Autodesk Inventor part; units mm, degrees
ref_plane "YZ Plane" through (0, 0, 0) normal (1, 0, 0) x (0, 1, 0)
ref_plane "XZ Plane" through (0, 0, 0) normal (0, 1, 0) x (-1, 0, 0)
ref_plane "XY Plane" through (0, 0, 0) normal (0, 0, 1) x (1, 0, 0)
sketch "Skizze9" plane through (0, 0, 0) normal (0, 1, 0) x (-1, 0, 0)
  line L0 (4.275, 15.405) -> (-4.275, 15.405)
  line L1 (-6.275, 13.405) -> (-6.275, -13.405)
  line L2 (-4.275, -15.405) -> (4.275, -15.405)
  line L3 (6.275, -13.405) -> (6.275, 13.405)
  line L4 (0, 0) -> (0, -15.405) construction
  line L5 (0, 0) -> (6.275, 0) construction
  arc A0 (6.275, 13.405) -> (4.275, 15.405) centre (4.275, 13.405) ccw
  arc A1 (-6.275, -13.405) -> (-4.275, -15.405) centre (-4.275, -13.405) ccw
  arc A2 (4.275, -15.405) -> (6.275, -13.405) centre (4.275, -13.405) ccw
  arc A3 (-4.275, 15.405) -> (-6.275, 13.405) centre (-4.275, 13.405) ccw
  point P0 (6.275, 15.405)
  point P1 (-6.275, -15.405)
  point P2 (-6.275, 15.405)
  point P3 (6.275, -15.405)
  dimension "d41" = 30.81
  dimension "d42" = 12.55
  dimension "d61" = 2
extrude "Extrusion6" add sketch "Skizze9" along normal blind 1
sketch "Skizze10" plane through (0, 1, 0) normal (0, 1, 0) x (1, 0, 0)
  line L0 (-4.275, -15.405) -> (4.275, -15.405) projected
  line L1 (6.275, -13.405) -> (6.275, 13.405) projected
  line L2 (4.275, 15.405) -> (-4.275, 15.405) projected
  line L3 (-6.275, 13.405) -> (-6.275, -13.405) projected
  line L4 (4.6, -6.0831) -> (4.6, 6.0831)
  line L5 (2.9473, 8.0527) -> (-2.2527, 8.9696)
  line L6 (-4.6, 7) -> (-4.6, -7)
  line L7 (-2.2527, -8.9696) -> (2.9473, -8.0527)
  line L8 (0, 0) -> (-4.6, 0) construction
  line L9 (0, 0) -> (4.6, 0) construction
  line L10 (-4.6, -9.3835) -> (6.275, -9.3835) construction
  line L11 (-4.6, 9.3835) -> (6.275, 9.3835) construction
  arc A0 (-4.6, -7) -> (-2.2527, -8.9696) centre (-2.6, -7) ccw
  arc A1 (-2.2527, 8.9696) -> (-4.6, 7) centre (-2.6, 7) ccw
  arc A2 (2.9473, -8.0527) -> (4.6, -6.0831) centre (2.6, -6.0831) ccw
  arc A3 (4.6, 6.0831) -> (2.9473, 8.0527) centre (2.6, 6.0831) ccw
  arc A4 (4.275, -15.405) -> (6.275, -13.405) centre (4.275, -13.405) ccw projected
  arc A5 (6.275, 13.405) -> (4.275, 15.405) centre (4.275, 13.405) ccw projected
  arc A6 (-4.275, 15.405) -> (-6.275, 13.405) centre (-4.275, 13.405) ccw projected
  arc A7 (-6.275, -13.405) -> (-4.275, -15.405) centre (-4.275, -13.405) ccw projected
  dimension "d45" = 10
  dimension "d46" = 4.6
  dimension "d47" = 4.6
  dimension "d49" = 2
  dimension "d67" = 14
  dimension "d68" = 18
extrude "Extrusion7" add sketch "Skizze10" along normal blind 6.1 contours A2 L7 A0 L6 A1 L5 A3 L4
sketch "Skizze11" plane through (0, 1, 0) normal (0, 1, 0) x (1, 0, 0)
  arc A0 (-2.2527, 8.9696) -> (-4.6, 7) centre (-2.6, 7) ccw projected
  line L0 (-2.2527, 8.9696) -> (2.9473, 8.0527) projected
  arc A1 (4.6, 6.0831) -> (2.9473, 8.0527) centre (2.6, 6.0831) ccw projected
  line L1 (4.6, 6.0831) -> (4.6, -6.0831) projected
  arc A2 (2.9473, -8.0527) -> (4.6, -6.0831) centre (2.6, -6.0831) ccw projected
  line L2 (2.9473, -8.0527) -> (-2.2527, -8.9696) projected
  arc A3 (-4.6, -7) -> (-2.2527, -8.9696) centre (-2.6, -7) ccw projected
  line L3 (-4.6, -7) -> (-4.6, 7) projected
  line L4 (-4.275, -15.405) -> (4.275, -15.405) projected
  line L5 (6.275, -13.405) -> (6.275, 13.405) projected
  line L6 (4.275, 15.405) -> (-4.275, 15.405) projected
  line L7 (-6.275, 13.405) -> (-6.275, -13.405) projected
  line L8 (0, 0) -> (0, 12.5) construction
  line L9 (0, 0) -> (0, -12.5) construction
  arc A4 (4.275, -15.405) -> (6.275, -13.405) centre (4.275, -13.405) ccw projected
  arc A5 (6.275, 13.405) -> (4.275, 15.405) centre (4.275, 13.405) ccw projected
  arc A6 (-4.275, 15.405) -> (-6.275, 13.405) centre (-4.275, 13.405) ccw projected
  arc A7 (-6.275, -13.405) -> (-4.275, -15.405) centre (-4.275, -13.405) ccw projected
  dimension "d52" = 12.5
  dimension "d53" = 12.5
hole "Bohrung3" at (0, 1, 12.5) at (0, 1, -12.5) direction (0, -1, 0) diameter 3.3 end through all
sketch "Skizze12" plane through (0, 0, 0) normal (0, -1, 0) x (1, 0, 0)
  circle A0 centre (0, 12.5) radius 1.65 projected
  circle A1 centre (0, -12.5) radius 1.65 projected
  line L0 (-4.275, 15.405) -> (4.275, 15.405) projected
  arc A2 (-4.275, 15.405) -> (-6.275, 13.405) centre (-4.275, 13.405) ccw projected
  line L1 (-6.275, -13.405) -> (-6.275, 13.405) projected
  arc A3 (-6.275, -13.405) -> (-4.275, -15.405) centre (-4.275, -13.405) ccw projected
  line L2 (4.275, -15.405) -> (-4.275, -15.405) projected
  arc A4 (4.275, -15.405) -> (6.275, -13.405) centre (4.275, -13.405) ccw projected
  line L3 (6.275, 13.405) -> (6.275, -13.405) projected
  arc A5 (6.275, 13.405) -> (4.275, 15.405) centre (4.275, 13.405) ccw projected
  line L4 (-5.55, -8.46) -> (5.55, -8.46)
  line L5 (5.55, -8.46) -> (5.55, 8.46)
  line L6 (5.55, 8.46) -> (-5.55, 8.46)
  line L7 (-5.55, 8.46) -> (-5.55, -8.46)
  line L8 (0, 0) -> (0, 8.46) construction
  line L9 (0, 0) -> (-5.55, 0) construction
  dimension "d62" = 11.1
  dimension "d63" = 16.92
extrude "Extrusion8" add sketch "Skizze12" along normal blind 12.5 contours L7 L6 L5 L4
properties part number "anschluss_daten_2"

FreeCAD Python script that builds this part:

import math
import FreeCAD as App
import Part
import Sketcher
from FreeCAD import Vector
Q = App.Units.Quantity

doc = App.newDocument("Part")
body = doc.addObject("PartDesign::Body", "Body")

sketch1 = body.newObject("Sketcher::SketchObject", "Sketch")
sketch1.AttachmentSupport = (doc.getObject("XZ_Plane"), [""])
sketch1.MapMode = "FlatFace"
sketch1.addGeometry(Part.ArcOfCircle(Part.Circle(Vector(-4.3, 13.4, 0), Vector(0, 0, 1), 2), math.radians(90), math.radians(180)), False)
sketch1.addGeometry(Part.LineSegment(Vector(-4.3, 15.4, 0), Vector(4.3, 15.4, 0)), False)
sketch1.addGeometry(Part.ArcOfCircle(Part.Circle(Vector(4.3, 13.4, 0), Vector(0, 0, 1), 2), math.radians(0), math.radians(90)), False)
sketch1.addGeometry(Part.LineSegment(Vector(6.3, 13.4, 0), Vector(6.3, -13.4, 0)), False)
sketch1.addGeometry(Part.ArcOfCircle(Part.Circle(Vector(4.3, -13.4, 0), Vector(0, 0, 1), 2), math.radians(-90), math.radians(0)), False)
sketch1.addGeometry(Part.LineSegment(Vector(4.3, -15.4, 0), Vector(-4.3, -15.4, 0)), False)
sketch1.addGeometry(Part.ArcOfCircle(Part.Circle(Vector(-4.3, -13.4, 0), Vector(0, 0, 1), 2), math.radians(180), math.radians(270)), False)
sketch1.addGeometry(Part.LineSegment(Vector(-6.3, -13.4, 0), Vector(-6.3, 13.4, 0)), False)
sketch1.addConstraint(Sketcher.Constraint("Tangent", 0, 1, 1, 1))
sketch1.addConstraint(Sketcher.Constraint("Tangent", 1, 2, 2, 2))
sketch1.addConstraint(Sketcher.Constraint("Tangent", 2, 1, 3, 1))
sketch1.addConstraint(Sketcher.Constraint("Tangent", 3, 2, 4, 2))
sketch1.addConstraint(Sketcher.Constraint("Tangent", 4, 1, 5, 1))
sketch1.addConstraint(Sketcher.Constraint("Tangent", 5, 2, 6, 2))
sketch1.addConstraint(Sketcher.Constraint("Tangent", 6, 1, 7, 1))
sketch1.addConstraint(Sketcher.Constraint("Tangent", 7, 2, 0, 2))
sketch1.addConstraint(Sketcher.Constraint("Horizontal", 1))
sketch1.addConstraint(Sketcher.Constraint("Vertical", 3))
sketch1.addConstraint(Sketcher.Constraint("Horizontal", 5))
sketch1.addConstraint(Sketcher.Constraint("Vertical", 7))
sketch1.addConstraint(Sketcher.Constraint("Equal", 0, 2))
sketch1.addConstraint(Sketcher.Constraint("Equal", 2, 4))
sketch1.addConstraint(Sketcher.Constraint("Equal", 4, 6))
sketch1.addConstraint(Sketcher.Constraint("Symmetric", 0, 3, 4, 3, -1, 1))
sketch1.addConstraint(Sketcher.Constraint("Radius", 0, Q("2 mm")))
sketch1.addConstraint(Sketcher.Constraint("DistanceX", 6, 1, 3, 2, Q("12.55 mm")))
sketch1.addConstraint(Sketcher.Constraint("DistanceY", 3, 2, 3, 1, Q("26.81 mm")))
pad1 = body.newObject("PartDesign::Pad", "Pad")
pad1.Profile = sketch1
pad1.Length = 1
pad1.Reversed = True

sketch2 = body.newObject("Sketcher::SketchObject", "Sketch001")
sketch2.AttachmentSupport = (doc.getObject("XZ_Plane"), [""])
sketch2.MapMode = "FlatFace"
sketch2.AttachmentOffset = App.Placement(Vector(0, 0, -1), App.Rotation())
sketch2.addGeometry(Part.ArcOfCircle(Part.Circle(Vector(2.6, 6.1, 0), Vector(0, 0, 1), 2), math.radians(0), math.radians(80)), False)
sketch2.addGeometry(Part.LineSegment(Vector(4.6, 6.1, 0), Vector(4.6, -6.1, 0)), False)
sketch2.addGeometry(Part.ArcOfCircle(Part.Circle(Vector(2.6, -6.1, 0), Vector(0, 0, 1), 2), math.radians(-80), math.radians(0)), False)
sketch2.addGeometry(Part.LineSegment(Vector(2.9, -8.1, 0), Vector(-2.3, -9, 0)), False)
sketch2.addGeometry(Part.ArcOfCircle(Part.Circle(Vector(-2.6, -7, 0), Vector(0, 0, 1), 2), math.radians(180), math.radians(280)), False)
sketch2.addGeometry(Part.LineSegment(Vector(-4.6, -7, 0), Vector(-4.6, 7, 0)), False)
sketch2.addGeometry(Part.ArcOfCircle(Part.Circle(Vector(-2.6, 7, 0), Vector(0, 0, 1), 2), math.radians(80), math.radians(180)), False)
sketch2.addGeometry(Part.LineSegment(Vector(-2.3, 9, 0), Vector(2.9, 8.1, 0)), False)
sketch2.addConstraint(Sketcher.Constraint("Tangent", 0, 1, 1, 1))
sketch2.addConstraint(Sketcher.Constraint("Tangent", 1, 2, 2, 2))
sketch2.addConstraint(Sketcher.Constraint("Tangent", 2, 1, 3, 1))
sketch2.addConstraint(Sketcher.Constraint("Tangent", 3, 2, 4, 2))
sketch2.addConstraint(Sketcher.Constraint("Tangent", 4, 1, 5, 1))
sketch2.addConstraint(Sketcher.Constraint("Tangent", 5, 2, 6, 2))
sketch2.addConstraint(Sketcher.Constraint("Tangent", 6, 1, 7, 1))
sketch2.addConstraint(Sketcher.Constraint("Tangent", 7, 2, 0, 2))
sketch2.addConstraint(Sketcher.Constraint("Vertical", 1))
sketch2.addConstraint(Sketcher.Constraint("Vertical", 5))
sketch2.addConstraint(Sketcher.Constraint("Equal", 0, 2))
sketch2.addConstraint(Sketcher.Constraint("Equal", 2, 4))
sketch2.addConstraint(Sketcher.Constraint("Equal", 4, 6))
sketch2.addConstraint(Sketcher.Constraint("Symmetric", 3, 2, 6, 1, -1))
sketch2.addConstraint(Sketcher.Constraint("Radius", 0, Q("2 mm")))
sketch2.addConstraint(Sketcher.Constraint("DistanceY", 5, 1, 5, 2, Q("14 mm")))
sketch2.addConstraint(Sketcher.Constraint("Angle", 7, Q("-10 deg")))
sketch2.addConstraint(Sketcher.Constraint("DistanceX", -1, 1, 0, 1, Q("4.6 mm")))
sketch2.addConstraint(Sketcher.Constraint("DistanceX", 4, 1, -1, 1, Q("4.6 mm")))
pad2 = body.newObject("PartDesign::Pad", "Pad001")
pad2.Profile = sketch2
pad2.Length = 6.1
pad2.Reversed = True

sketch3 = body.newObject("Sketcher::SketchObject", "Sketch002")
sketch3.AttachmentSupport = (doc.getObject("XZ_Plane"), [""])
sketch3.MapMode = "FlatFace"
sketch3.AttachmentOffset = App.Placement(Vector(0, 0, -1), App.Rotation())
sketch3.addGeometry(Part.Circle(Vector(0, 12.5, 0), Vector(0, 0, 1), 1.6), False)
sketch3.addGeometry(Part.Circle(Vector(0, -12.5, 0), Vector(0, 0, 1), 1.6), False)
sketch3.addConstraint(Sketcher.Constraint("Equal", 0, 1))
sketch3.addConstraint(Sketcher.Constraint("Symmetric", 0, 3, 1, 3, -1, 1))
sketch3.addConstraint(Sketcher.Constraint("PointOnObject", 0, 3, -2))
sketch3.addConstraint(Sketcher.Constraint("Diameter", 0, Q("3.3 mm")))
sketch3.addConstraint(Sketcher.Constraint("DistanceY", 1, 3, 0, 3, Q("25 mm")))
doc.recompute()
hole = body.newObject("PartDesign::Hole", "Hole")
hole.Profile = sketch3
hole.ThreadType = "None"
hole.Diameter = 3.3
hole.DepthType = "ThroughAll"
hole.Reversed = True

sketch4 = body.newObject("Sketcher::SketchObject", "Sketch003")
sketch4.AttachmentSupport = (doc.getObject("XZ_Plane"), [""])
sketch4.MapMode = "FlatFace"
sketch4.addGeometry(Part.LineSegment(Vector(-6, 8, 0), Vector(-6, -8, 0)), False)
sketch4.addGeometry(Part.LineSegment(Vector(-6, -8, 0), Vector(6, -8, 0)), False)
sketch4.addGeometry(Part.LineSegment(Vector(6, -8, 0), Vector(6, 8, 0)), False)
sketch4.addGeometry(Part.LineSegment(Vector(6, 8, 0), Vector(-6, 8, 0)), False)
sketch4.addConstraint(Sketcher.Constraint("Coincident", 0, 2, 1, 1))
sketch4.addConstraint(Sketcher.Constraint("Coincident", 1, 2, 2, 1))
sketch4.addConstraint(Sketcher.Constraint("Coincident", 2, 2, 3, 1))
sketch4.addConstraint(Sketcher.Constraint("Coincident", 3, 2, 0, 1))
sketch4.addConstraint(Sketcher.Constraint("Vertical", 0))
sketch4.addConstraint(Sketcher.Constraint("Horizontal", 1))
sketch4.addConstraint(Sketcher.Constraint("Vertical", 2))
sketch4.addConstraint(Sketcher.Constraint("Horizontal", 3))
sketch4.addConstraint(Sketcher.Constraint("Symmetric", 0, 2, 2, 2, -1, 1))
sketch4.addConstraint(Sketcher.Constraint("DistanceX", 1, 1, 1, 2, Q("11.1 mm")))
sketch4.addConstraint(Sketcher.Constraint("DistanceY", 0, 2, 0, 1, Q("16.92 mm")))
pad3 = body.newObject("PartDesign::Pad", "Pad002")
pad3.Profile = sketch4
pad3.Length = 12.5

doc.recompute()
